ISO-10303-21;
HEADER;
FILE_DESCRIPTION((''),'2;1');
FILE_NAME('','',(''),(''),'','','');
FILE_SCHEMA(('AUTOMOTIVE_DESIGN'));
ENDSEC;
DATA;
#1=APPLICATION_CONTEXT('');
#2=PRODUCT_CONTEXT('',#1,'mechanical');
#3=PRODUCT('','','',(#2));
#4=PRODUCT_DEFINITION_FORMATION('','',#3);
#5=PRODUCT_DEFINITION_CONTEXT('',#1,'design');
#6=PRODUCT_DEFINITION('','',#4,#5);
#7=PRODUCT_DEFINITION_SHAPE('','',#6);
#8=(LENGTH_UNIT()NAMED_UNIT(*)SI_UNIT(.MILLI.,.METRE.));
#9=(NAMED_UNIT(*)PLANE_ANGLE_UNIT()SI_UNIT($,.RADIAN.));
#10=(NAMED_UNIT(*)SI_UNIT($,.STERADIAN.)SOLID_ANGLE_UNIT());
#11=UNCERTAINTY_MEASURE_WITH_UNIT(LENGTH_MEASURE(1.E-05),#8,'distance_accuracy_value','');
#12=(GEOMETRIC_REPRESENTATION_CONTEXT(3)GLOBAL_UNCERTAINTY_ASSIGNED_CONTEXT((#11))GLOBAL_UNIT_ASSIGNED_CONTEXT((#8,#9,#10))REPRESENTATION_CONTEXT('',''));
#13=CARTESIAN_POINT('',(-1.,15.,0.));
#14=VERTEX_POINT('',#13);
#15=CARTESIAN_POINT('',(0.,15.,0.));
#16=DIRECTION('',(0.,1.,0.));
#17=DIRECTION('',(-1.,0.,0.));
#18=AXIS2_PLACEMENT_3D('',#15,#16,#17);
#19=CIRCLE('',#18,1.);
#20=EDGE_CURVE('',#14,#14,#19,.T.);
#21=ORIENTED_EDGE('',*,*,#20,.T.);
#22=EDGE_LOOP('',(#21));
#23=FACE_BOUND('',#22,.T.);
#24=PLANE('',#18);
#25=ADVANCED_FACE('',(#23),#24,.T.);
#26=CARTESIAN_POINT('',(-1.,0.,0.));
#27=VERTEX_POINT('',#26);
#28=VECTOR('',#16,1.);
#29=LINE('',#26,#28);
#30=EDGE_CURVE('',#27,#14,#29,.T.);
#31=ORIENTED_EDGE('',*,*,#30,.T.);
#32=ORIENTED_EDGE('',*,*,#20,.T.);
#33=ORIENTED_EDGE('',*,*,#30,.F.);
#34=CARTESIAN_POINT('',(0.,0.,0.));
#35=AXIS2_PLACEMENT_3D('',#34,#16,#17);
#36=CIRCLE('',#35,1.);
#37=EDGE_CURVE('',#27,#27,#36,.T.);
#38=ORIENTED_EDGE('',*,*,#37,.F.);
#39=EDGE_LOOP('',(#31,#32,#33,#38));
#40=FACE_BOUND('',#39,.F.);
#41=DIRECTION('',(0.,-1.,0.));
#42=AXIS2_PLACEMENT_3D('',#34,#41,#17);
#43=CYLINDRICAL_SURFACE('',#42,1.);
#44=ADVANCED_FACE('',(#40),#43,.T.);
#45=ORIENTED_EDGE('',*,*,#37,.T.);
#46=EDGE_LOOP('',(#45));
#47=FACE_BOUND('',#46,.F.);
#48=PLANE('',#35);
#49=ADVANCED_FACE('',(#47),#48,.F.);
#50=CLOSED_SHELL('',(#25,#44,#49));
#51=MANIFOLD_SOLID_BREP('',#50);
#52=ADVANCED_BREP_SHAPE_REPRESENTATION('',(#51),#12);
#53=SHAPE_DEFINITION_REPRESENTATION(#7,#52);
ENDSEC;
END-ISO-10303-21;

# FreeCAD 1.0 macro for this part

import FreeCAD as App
import Part
import Sketcher

doc = App.newDocument("Part")
body = doc.addObject("PartDesign::Body", "Body")

sketch1 = doc.addObject("Sketcher::SketchObject", "Sketch")
body.addObject(sketch1)
sketch1.AttachmentSupport = (doc.XZ_Plane, [""])
sketch1.MapMode = "FlatFace"
sketch1.addGeometry(Part.Circle(App.Vector(0, 0, 0), App.Vector(0, 0, 1), 1), False)
sketch1.addConstraint(Sketcher.Constraint("Coincident", 0, 3, -1, 1))
sketch1.addConstraint(Sketcher.Constraint("Diameter", 0, 2.0))
pad1 = doc.addObject("PartDesign::Pad", "Pad")
body.addObject(pad1)
pad1.Profile = sketch1
pad1.Length = 15
pad1.Reversed = True

doc.recompute()
